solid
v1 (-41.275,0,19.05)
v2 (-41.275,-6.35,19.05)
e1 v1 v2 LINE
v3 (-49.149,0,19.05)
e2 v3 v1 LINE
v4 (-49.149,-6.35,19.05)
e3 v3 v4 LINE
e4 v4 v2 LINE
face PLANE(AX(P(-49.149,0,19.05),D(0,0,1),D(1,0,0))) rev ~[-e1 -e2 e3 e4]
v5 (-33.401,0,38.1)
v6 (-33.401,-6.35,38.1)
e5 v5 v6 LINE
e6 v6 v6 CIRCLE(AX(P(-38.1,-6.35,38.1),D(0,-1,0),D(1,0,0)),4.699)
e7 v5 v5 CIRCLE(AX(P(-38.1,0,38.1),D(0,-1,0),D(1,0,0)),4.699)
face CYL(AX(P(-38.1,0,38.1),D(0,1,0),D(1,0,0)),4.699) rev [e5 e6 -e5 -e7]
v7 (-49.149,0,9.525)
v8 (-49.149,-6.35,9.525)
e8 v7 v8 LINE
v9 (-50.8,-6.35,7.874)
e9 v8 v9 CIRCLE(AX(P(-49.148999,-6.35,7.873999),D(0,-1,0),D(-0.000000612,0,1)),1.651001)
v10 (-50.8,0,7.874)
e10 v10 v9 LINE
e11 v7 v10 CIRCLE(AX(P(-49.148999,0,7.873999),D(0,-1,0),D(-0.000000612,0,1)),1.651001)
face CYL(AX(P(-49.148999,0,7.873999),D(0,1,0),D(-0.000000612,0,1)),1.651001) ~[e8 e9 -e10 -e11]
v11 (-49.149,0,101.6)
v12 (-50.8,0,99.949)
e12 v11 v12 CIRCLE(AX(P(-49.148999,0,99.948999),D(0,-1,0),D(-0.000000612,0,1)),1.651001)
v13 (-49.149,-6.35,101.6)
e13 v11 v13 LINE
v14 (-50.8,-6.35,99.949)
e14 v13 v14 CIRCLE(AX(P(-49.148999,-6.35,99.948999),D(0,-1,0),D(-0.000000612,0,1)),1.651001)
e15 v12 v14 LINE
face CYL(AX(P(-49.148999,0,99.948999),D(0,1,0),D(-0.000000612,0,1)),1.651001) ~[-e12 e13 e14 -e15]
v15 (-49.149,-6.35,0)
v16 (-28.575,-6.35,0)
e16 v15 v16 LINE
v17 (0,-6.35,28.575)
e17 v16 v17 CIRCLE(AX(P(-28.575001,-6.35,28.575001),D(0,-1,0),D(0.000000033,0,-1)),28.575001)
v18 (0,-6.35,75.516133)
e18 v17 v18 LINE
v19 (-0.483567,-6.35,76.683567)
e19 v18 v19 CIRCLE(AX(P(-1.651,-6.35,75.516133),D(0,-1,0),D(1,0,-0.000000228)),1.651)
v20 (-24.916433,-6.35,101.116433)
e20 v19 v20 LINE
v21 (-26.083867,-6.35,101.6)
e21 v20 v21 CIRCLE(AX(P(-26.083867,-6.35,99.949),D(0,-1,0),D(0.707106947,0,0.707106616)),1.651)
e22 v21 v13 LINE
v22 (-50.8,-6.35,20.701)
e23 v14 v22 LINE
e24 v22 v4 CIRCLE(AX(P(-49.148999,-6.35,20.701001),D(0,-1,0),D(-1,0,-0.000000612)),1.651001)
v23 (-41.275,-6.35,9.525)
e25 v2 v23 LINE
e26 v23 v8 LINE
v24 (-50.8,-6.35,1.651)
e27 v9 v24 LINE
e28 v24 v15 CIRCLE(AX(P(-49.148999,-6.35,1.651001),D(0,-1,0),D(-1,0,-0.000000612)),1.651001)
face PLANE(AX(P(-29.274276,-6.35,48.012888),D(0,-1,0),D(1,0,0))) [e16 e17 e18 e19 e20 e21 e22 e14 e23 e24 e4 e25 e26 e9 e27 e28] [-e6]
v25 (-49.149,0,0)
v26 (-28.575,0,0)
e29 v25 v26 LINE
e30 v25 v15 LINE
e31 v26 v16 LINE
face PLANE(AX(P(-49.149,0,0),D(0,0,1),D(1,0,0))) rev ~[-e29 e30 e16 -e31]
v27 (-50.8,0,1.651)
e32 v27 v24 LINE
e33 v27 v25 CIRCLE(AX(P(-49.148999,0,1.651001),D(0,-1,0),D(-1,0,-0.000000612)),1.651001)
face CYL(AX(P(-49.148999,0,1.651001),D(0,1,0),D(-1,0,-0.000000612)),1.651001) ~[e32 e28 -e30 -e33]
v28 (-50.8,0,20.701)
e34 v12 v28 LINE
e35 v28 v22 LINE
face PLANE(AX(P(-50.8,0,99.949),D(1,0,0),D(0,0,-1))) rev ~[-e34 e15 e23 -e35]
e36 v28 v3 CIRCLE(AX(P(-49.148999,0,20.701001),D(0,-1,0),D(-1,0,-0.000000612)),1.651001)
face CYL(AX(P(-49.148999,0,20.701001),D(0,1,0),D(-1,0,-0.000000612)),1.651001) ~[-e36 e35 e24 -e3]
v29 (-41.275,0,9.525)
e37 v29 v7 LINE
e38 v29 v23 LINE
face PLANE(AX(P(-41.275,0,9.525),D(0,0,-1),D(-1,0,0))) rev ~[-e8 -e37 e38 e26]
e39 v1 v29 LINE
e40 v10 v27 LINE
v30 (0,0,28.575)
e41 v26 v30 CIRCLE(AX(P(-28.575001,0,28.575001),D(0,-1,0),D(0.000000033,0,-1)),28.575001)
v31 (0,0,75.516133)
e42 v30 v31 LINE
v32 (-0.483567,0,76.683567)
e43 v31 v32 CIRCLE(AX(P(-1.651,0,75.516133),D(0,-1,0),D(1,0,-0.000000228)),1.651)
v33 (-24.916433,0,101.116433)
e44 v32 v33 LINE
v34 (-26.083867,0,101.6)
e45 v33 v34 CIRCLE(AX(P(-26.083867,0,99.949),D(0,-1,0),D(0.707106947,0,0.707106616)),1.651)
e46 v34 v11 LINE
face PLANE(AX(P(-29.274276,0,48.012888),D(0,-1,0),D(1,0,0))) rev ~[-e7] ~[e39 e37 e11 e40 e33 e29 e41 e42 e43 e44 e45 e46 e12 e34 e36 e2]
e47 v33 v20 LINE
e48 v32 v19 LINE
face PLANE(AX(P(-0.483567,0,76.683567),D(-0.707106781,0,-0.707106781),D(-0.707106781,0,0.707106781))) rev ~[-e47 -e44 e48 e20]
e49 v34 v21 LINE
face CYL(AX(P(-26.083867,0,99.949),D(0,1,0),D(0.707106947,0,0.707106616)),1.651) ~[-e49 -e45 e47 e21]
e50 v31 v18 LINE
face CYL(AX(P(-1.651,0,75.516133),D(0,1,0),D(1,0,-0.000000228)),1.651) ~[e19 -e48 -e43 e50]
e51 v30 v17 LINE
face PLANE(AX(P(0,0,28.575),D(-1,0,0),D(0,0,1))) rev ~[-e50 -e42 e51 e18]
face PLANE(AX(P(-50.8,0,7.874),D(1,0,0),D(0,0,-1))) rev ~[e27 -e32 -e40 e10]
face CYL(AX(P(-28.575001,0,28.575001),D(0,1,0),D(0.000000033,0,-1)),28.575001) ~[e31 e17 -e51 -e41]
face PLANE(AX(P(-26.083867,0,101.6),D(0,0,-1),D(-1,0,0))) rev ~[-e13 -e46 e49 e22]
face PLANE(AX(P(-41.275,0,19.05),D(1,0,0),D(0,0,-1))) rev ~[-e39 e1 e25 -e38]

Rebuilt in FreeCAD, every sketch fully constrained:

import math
import FreeCAD as App
import Part
import Sketcher
from FreeCAD import Vector
Q = App.Units.Quantity

doc = App.newDocument("Part")
params = doc.addObject("Spreadsheet::Sheet", "Params")
for row, (alias, value) in enumerate([
    ("sketch1_diameter", "0.37 in"),
    ("sketch1_radius", "1.125 in"),
    ("sketch1_radius2", "0.065 in"),
    ("sketch1_width", "0.31 in"),
    ("sketch1_height", "3.12 in"),
    ("pad1_length", "0.25 in"),
], start=1):
    params.set(f"A{row}", alias)
    params.set(f"B{row}", "=" + value)
    params.setAlias(f"B{row}", alias)

body = doc.addObject("PartDesign::Body", "Body")

# Sketch on XZ plane
sketch1 = body.newObject("Sketcher::SketchObject", "Sketch")
sketch1.AttachmentSupport = (doc.getObject("XZ_Plane"), [""])
sketch1.MapMode = "FlatFace"
sketch1.addGeometry(Part.ArcOfCircle(Part.Circle(Vector(-28.575001, 28.575001, 0), Vector(0, 0, 1), 28.575001), math.radians(-89.999998), math.radians(-0.000002)), False)
sketch1.addGeometry(Part.LineSegment(Vector(0, 28.575, 0), Vector(0, 75.516133, 0)), False)
sketch1.addGeometry(Part.ArcOfCircle(Part.Circle(Vector(-1.651, 75.516133, 0), Vector(0, 0, 1), 1.651), math.radians(-0.000013), math.radians(45.000013)), False)
sketch1.addGeometry(Part.LineSegment(Vector(-0.483567, 76.683567, 0), Vector(-24.916433, 101.116433, 0)), False)
sketch1.addGeometry(Part.ArcOfCircle(Part.Circle(Vector(-26.083867, 99.949, 0), Vector(0, 0, 1), 1.651), math.radians(44.999987), math.radians(90.000013)), False)
sketch1.addGeometry(Part.LineSegment(Vector(-26.083867, 101.6, 0), Vector(-49.149, 101.6, 0)), False)
sketch1.addGeometry(Part.ArcOfCircle(Part.Circle(Vector(-49.148999, 99.948999, 0), Vector(0, 0, 1), 1.651001), math.radians(90.000035), math.radians(179.999965)), False)
sketch1.addGeometry(Part.LineSegment(Vector(-50.8, 99.949, 0), Vector(-50.8, 20.701, 0)), False)
sketch1.addGeometry(Part.ArcOfCircle(Part.Circle(Vector(-49.148999, 20.701001, 0), Vector(0, 0, 1), 1.651001), math.radians(-179.999965), math.radians(-90.000035)), False)
sketch1.addGeometry(Part.LineSegment(Vector(-49.149, 19.05, 0), Vector(-41.275, 19.05, 0)), False)
sketch1.addGeometry(Part.LineSegment(Vector(-41.275, 19.05, 0), Vector(-41.275, 9.525, 0)), False)
sketch1.addGeometry(Part.LineSegment(Vector(-41.275, 9.525, 0), Vector(-49.149, 9.525, 0)), False)
sketch1.addGeometry(Part.ArcOfCircle(Part.Circle(Vector(-49.148999, 7.873999, 0), Vector(0, 0, 1), 1.651001), math.radians(90.000035), math.radians(179.999965)), False)
sketch1.addGeometry(Part.LineSegment(Vector(-50.8, 7.874, 0), Vector(-50.8, 1.651, 0)), False)
sketch1.addGeometry(Part.ArcOfCircle(Part.Circle(Vector(-49.148999, 1.651001, 0), Vector(0, 0, 1), 1.651001), math.radians(-179.999965), math.radians(-90.000035)), False)
sketch1.addGeometry(Part.LineSegment(Vector(-49.149, 0, 0), Vector(-28.575, 0, 0)), False)
sketch1.addGeometry(Part.Circle(Vector(-38.1, 38.1, 0), Vector(0, 0, 1), 4.699), False)
sketch1.addConstraint(Sketcher.Constraint("Tangent", 0, 2, 1, 1))
sketch1.addConstraint(Sketcher.Constraint("Tangent", 1, 2, 2, 1))
sketch1.addConstraint(Sketcher.Constraint("Tangent", 2, 2, 3, 1))
sketch1.addConstraint(Sketcher.Constraint("Tangent", 3, 2, 4, 1))
sketch1.addConstraint(Sketcher.Constraint("Tangent", 4, 2, 5, 1))
sketch1.addConstraint(Sketcher.Constraint("Tangent", 5, 2, 6, 1))
sketch1.addConstraint(Sketcher.Constraint("Tangent", 6, 2, 7, 1))
sketch1.addConstraint(Sketcher.Constraint("Tangent", 7, 2, 8, 1))
sketch1.addConstraint(Sketcher.Constraint("Tangent", 8, 2, 9, 1))
sketch1.addConstraint(Sketcher.Constraint("Coincident", 9, 2, 10, 1))
sketch1.addConstraint(Sketcher.Constraint("Coincident", 10, 2, 11, 1))
sketch1.addConstraint(Sketcher.Constraint("Tangent", 11, 2, 12, 1))
sketch1.addConstraint(Sketcher.Constraint("Tangent", 12, 2, 13, 1))
sketch1.addConstraint(Sketcher.Constraint("Tangent", 13, 2, 14, 1))
sketch1.addConstraint(Sketcher.Constraint("Tangent", 14, 2, 15, 1))
sketch1.addConstraint(Sketcher.Constraint("Tangent", 15, 2, 0, 1))
sketch1.addConstraint(Sketcher.Constraint("Vertical", 1))
sketch1.addConstraint(Sketcher.Constraint("Horizontal", 5))
sketch1.addConstraint(Sketcher.Constraint("Vertical", 7))
sketch1.addConstraint(Sketcher.Constraint("Horizontal", 9))
sketch1.addConstraint(Sketcher.Constraint("Vertical", 10))
sketch1.addConstraint(Sketcher.Constraint("Horizontal", 11))
sketch1.addConstraint(Sketcher.Constraint("Vertical", 13))
sketch1.addConstraint(Sketcher.Constraint("Horizontal", 15))
sketch1.addConstraint(Sketcher.Constraint("Equal", 2, 4))
sketch1.addConstraint(Sketcher.Constraint("Equal", 4, 6))
sketch1.addConstraint(Sketcher.Constraint("Equal", 6, 8))
sketch1.addConstraint(Sketcher.Constraint("Equal", 8, 12))
sketch1.addConstraint(Sketcher.Constraint("Equal", 12, 14))
sketch1.addConstraint(Sketcher.Constraint("PointOnObject", 0, 2, -2))
sketch1.addConstraint(Sketcher.Constraint("PointOnObject", 14, 2, -1))
sketch1.addConstraint(Sketcher.Constraint("Vertical", 8, 3, 12, 3))
sketch1.addConstraint(Sketcher.Constraint("Diameter", 16, Q("0.37 in")))
sketch1.addConstraint(Sketcher.Constraint("DistanceY", -1, 1, 4, 2, Q("4 in")))
sketch1.addConstraint(Sketcher.Constraint("DistanceX", 6, 2, -1, 1, Q("2 in")))
sketch1.addConstraint(Sketcher.Constraint("Angle", 3, Q("135 deg")))
sketch1.addConstraint(Sketcher.Constraint("Radius", 0, Q("1.125 in")))
sketch1.addConstraint(Sketcher.Constraint("Radius", 2, Q("0.065 in")))
sketch1.addConstraint(Sketcher.Constraint("DistanceX", 9, 1, 9, 2, Q("0.31 in")))
sketch1.addConstraint(Sketcher.Constraint("DistanceY", 7, 2, 7, 1, Q("3.12 in")))
sketch1.addConstraint(Sketcher.Constraint("DistanceX", 16, 3, -1, 1, Q("1.5 in")))
sketch1.addConstraint(Sketcher.Constraint("DistanceY", -1, 1, 16, 3, Q("1.5 in")))
sketch1.addConstraint(Sketcher.Constraint("DistanceY", 10, 2, 10, 1, Q("0.375 in")))
sketch1.addConstraint(Sketcher.Constraint("DistanceX", 4, 3, 2, 2, 25.6003))
sketch1.setExpression("Constraints[32]", "Params.sketch1_diameter")
sketch1.setExpression("Constraints[36]", "Params.sketch1_radius")
sketch1.setExpression("Constraints[37]", "Params.sketch1_radius2")
sketch1.setExpression("Constraints[38]", "Params.sketch1_width")
sketch1.setExpression("Constraints[39]", "Params.sketch1_height")
pad1 = body.newObject("PartDesign::Pad", "Pad")
pad1.Profile = sketch1
pad1.setExpression("Length", "Params.pad1_length")

doc.recompute()
